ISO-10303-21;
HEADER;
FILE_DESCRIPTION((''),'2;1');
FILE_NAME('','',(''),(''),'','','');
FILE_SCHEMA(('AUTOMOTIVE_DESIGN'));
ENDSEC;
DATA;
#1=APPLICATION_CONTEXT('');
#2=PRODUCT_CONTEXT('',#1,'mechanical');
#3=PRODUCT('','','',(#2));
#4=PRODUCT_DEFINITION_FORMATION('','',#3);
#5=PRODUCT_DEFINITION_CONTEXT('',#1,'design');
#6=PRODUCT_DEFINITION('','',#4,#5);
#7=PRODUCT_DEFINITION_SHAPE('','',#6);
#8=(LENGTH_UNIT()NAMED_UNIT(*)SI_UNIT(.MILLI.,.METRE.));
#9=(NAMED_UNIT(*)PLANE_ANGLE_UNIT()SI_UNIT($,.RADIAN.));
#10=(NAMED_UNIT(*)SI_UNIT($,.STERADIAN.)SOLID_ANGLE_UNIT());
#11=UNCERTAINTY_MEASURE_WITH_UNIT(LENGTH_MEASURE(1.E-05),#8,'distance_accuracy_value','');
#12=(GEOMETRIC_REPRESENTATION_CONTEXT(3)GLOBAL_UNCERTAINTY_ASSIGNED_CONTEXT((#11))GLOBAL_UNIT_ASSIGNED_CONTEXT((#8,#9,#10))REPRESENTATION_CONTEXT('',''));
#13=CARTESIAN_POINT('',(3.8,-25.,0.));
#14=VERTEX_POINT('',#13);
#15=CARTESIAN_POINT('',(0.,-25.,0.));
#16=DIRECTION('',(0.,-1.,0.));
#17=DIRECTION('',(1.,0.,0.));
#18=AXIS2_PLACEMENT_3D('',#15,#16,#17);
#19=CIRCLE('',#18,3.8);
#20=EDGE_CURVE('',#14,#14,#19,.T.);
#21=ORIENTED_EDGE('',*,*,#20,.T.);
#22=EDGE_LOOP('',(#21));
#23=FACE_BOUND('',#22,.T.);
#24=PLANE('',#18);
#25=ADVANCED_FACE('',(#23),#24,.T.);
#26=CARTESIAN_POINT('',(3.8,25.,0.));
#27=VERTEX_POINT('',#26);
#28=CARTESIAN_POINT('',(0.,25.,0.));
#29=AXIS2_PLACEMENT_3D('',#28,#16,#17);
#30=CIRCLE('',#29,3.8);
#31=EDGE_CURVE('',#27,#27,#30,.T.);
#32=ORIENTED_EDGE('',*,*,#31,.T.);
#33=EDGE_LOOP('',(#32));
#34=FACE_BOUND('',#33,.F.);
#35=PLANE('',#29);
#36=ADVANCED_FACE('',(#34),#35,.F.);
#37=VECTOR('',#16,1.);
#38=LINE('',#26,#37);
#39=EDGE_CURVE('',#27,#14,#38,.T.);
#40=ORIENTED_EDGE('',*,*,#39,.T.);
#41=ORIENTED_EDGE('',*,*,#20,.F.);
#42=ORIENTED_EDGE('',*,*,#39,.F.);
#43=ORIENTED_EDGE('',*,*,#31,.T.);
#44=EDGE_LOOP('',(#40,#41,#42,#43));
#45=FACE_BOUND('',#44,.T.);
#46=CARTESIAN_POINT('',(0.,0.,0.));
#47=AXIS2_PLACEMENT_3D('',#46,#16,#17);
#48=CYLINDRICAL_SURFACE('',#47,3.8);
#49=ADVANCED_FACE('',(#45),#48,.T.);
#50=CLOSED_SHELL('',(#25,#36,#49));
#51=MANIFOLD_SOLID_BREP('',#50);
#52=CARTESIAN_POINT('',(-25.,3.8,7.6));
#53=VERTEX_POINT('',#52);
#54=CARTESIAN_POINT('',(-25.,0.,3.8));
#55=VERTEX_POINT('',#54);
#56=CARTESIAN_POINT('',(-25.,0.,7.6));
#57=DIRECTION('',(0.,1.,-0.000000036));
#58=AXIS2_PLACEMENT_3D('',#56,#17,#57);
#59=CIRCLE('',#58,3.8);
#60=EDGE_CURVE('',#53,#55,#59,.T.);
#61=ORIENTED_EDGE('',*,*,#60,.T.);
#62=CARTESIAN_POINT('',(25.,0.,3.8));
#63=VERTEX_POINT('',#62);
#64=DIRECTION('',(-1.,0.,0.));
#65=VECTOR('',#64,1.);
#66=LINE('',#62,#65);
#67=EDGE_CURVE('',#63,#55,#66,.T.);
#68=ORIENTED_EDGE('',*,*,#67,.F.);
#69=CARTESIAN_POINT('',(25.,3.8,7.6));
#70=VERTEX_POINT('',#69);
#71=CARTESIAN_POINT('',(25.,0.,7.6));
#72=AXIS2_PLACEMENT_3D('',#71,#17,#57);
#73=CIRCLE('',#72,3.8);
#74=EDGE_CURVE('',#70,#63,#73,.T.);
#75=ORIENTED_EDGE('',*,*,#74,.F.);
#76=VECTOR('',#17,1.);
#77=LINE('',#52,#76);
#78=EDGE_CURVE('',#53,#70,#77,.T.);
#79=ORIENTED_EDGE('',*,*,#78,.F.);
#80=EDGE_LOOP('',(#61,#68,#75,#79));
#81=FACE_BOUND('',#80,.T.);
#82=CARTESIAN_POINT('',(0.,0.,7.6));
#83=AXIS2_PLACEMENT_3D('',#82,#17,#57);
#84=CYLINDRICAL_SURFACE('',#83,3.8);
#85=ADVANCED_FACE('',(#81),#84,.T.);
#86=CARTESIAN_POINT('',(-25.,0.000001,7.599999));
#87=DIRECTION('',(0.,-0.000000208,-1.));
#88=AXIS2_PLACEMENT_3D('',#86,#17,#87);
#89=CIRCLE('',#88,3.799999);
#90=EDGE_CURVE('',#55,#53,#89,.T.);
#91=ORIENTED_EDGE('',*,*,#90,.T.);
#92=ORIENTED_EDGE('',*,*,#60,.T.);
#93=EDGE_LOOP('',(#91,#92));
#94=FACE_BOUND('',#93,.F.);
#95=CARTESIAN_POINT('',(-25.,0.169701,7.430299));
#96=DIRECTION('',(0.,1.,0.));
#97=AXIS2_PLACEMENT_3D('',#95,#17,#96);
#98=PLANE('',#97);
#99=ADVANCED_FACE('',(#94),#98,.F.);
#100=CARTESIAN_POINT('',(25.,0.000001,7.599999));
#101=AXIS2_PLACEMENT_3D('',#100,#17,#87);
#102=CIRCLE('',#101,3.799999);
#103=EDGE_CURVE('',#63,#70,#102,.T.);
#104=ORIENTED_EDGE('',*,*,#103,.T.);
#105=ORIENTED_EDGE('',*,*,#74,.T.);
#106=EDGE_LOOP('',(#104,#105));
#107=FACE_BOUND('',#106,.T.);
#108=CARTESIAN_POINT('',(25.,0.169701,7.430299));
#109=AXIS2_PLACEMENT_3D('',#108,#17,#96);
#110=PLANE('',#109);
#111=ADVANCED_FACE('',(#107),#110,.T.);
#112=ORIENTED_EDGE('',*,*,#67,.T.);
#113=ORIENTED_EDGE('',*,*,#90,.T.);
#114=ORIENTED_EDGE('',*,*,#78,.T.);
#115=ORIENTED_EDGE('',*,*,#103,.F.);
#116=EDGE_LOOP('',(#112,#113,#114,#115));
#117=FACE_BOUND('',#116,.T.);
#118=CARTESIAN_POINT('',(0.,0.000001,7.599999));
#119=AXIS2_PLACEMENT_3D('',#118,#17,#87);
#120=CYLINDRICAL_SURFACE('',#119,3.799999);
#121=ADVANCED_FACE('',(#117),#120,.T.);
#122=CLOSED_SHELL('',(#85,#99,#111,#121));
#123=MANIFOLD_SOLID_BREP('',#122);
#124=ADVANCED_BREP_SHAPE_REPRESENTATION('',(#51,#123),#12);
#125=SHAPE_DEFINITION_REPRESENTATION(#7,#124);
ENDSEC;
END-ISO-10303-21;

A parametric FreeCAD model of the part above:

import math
import FreeCAD as App
import Part
import Sketcher
from FreeCAD import Vector
Q = App.Units.Quantity

doc = App.newDocument("Part")
params = doc.addObject("Spreadsheet::Sheet", "Params")
for row, (alias, value) in enumerate([
    ("sketch1_diameter", "7.6 mm"),
    ("pad1_length", "50 mm"),
    ("sketch2_radius", "3.799999 mm"),
    ("pad2_length", "50 mm"),
], start=1):
    params.set(f"A{row}", alias)
    params.set(f"B{row}", "=" + value)
    params.setAlias(f"B{row}", alias)

body = doc.addObject("PartDesign::Body", "Body")

# Sketch on XZ plane
sketch1 = doc.addObject("Sketcher::SketchObject", "Sketch")
body.addObject(sketch1)
sketch1.AttachmentSupport = (doc.XZ_Plane, [""])
sketch1.MapMode = "FlatFace"
sketch1.addGeometry(Part.Circle(Vector(0, 0, 0), Vector(0, 0, 1), 3.8), False)
sketch1.addConstraint(Sketcher.Constraint("Coincident", 0, 3, -1, 1))
sketch1.addConstraint(Sketcher.Constraint("Diameter", 0, Q("7.6 mm")))
sketch1.setExpression("Constraints[1]", "Params.sketch1_diameter")
pad1 = doc.addObject("PartDesign::Pad", "Pad")
body.addObject(pad1)
pad1.Profile = sketch1
pad1.setExpression("Length", "Params.pad1_length")
pad1.Midplane = True
body2 = doc.addObject("PartDesign::Body", "Body001")

# Sketch on YZ plane
sketch2 = doc.addObject("Sketcher::SketchObject", "Sketch001")
body2.addObject(sketch2)
sketch2.AttachmentSupport = (doc.getObject("YZ_Plane001"), [""])
sketch2.MapMode = "FlatFace"
sketch2.addGeometry(Part.ArcOfCircle(Part.Circle(Vector(0, 7.6, 0), Vector(0, 0, 1), 3.8), math.radians(-90), math.radians(0)), False)
sketch2.addGeometry(Part.ArcOfCircle(Part.Circle(Vector(0, 7.6, 0), Vector(0, 0, 1), 3.8), math.radians(0), math.radians(270)), False)
sketch2.addConstraint(Sketcher.Constraint("Tangent", 0, 1, 1, 2))
sketch2.addConstraint(Sketcher.Constraint("Coincident", 1, 1, 0, 2))
sketch2.addConstraint(Sketcher.Constraint("PointOnObject", 0, 3, -2))
sketch2.addConstraint(Sketcher.Constraint("PointOnObject", 0, 1, -2))
sketch2.addConstraint(Sketcher.Constraint("Horizontal", 0, 3, 1, 1))
sketch2.addConstraint(Sketcher.Constraint("Radius", 0, Q("3.799999 mm")))
sketch2.addConstraint(Sketcher.Constraint("DistanceY", -1, 1, 0, 3, Q("7.599999 mm")))
sketch2.setExpression("Constraints[5]", "Params.sketch2_radius")
pad2 = doc.addObject("PartDesign::Pad", "Pad001")
body2.addObject(pad2)
pad2.Profile = sketch2
pad2.setExpression("Length", "Params.pad2_length")
pad2.Midplane = True

doc.recompute()
